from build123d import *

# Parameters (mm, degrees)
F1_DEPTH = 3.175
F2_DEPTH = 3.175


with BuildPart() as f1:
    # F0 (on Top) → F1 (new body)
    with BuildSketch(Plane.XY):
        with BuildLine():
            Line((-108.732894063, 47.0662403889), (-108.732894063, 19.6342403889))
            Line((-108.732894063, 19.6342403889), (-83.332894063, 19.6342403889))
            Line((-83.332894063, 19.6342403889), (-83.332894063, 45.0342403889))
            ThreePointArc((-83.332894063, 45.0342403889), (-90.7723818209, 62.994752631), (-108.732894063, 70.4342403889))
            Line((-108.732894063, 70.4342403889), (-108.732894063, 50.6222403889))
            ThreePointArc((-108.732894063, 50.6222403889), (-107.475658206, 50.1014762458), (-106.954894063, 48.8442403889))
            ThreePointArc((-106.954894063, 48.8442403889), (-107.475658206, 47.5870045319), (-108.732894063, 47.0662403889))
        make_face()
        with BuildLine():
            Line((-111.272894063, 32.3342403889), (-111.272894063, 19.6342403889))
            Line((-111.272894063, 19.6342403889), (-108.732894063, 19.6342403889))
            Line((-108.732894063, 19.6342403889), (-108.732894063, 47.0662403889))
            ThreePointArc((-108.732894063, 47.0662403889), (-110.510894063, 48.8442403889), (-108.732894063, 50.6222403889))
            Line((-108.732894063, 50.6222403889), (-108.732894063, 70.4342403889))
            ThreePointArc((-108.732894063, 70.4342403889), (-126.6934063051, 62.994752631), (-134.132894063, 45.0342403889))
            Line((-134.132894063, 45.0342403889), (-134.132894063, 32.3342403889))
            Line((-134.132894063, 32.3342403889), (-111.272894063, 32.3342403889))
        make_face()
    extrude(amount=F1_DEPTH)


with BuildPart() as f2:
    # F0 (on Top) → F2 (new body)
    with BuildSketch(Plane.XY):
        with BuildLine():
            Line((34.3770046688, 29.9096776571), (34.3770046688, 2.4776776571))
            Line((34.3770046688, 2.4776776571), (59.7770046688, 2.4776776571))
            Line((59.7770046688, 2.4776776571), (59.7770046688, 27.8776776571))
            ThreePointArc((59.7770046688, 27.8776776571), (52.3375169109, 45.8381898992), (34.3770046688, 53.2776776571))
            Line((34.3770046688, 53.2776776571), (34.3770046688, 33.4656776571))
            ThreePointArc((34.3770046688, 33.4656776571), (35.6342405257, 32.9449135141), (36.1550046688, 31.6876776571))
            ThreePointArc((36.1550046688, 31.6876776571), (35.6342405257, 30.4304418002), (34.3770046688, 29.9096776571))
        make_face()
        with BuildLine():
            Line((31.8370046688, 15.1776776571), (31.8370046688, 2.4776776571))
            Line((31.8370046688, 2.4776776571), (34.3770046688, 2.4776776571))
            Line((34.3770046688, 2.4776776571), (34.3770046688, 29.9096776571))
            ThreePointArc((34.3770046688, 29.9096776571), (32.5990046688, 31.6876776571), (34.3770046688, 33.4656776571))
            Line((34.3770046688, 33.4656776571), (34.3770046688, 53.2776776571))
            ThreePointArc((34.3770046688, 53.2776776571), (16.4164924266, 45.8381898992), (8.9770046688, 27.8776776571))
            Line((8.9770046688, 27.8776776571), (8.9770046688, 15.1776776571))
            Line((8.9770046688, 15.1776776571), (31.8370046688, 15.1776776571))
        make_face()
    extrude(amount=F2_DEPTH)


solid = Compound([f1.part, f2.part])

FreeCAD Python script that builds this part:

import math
import FreeCAD as App
import Part
import Sketcher

V = App.Vector
Q = App.Units.Quantity

doc = App.newDocument("Part")
params = doc.addObject("Spreadsheet::Sheet", "Params")
for row, (alias, value) in enumerate([
    ("sketch1_radius", "1 in"),
    ("sketch1_height", "1 in"),
    ("sketch1_radius2", "0.07 in"),
    ("sketch1_width", "0.9 in"),
    ("pad1_length", "0.125 in"),
    ("sketch2_radius", "1 in"),
    ("sketch2_height", "1 in"),
    ("sketch2_radius2", "0.07 in"),
    ("sketch2_width", "0.9 in"),
    ("pad2_length", "0.125 in"),
], start=1):
    params.set(f"A{row}", alias)
    params.set(f"B{row}", "=" + value)
    params.setAlias(f"B{row}", alias)

body = doc.addObject("PartDesign::Body", "Body")

# Sketch on XY plane
sketch1 = body.newObject("Sketcher::SketchObject", "Sketch")
sketch1.AttachmentSupport = (doc.getObject("XY_Plane"), [""])
sketch1.MapMode = "FlatFace"
sketch1.addGeometry([
    Part.LineSegment(V(-83.3, 19.6, 0), V(-83.3, 45, 0)),  # 0
    Part.ArcOfCircle(Part.Circle(V(-108.7, 45, 0), V(0, 0, 1), 25.4), math.radians(0), math.radians(90)),  # 1
    Part.ArcOfCircle(Part.Circle(V(-108.7, 45, 0), V(0, 0, 1), 25.4), math.radians(90), math.radians(180)),  # 2
    Part.LineSegment(V(-134.1, 45, 0), V(-134.1, 32.3, 0)),  # 3
    Part.LineSegment(V(-134.1, 32.3, 0), V(-111.3, 32.3, 0)),  # 4
    Part.LineSegment(V(-111.3, 32.3, 0), V(-111.3, 19.6, 0)),  # 5
    Part.LineSegment(V(-111.3, 19.6, 0), V(-83.3, 19.6, 0)),  # 6
    Part.ArcOfCircle(Part.Circle(V(-108.7, 48.8, 0), V(0, 0, 1), 1.8), math.radians(-90), math.radians(0)),  # 7
    Part.ArcOfCircle(Part.Circle(V(-108.7, 48.8, 0), V(0, 0, 1), 1.8), math.radians(0), math.radians(270)),  # 8
], False)
sketch1.addConstraint([
    Sketcher.Constraint("Tangent", 0, 2, 1, 1),
    Sketcher.Constraint("Tangent", 1, 2, 2, 1),
    Sketcher.Constraint("Tangent", 2, 2, 3, 1),
    Sketcher.Constraint("Coincident", 3, 2, 4, 1),
    Sketcher.Constraint("Coincident", 4, 2, 5, 1),
    Sketcher.Constraint("Coincident", 5, 2, 6, 1),
    Sketcher.Constraint("Coincident", 6, 2, 0, 1),
    Sketcher.Constraint("Tangent", 7, 1, 8, 2),
    Sketcher.Constraint("Coincident", 8, 1, 7, 2),
    Sketcher.Constraint("Vertical", 0),
    Sketcher.Constraint("Vertical", 3),
    Sketcher.Constraint("Horizontal", 4),
    Sketcher.Constraint("Vertical", 5),
    Sketcher.Constraint("Horizontal", 6),
    Sketcher.Constraint("Equal", 1, 2),
    Sketcher.Constraint("Horizontal", 7, 3, 8, 1),
    Sketcher.Constraint("Vertical", 2, 3, 7, 3),
    Sketcher.Constraint("Vertical", 8, 3, 1, 2),
    Sketcher.Constraint("Vertical", 1, 2, 7, 1),
    Sketcher.Constraint("Equal", 3, 5),
    Sketcher.Constraint("Radius", 1, Q("1 in")),
    Sketcher.Constraint("DistanceY", 0, 1, 0, 2, Q("1 in")),
    Sketcher.Constraint("Radius", 7, Q("0.07 in")),
    Sketcher.Constraint("DistanceX", 4, 1, 4, 2, Q("0.9 in")),
    Sketcher.Constraint("DistanceY", 1, 3, 7, 3, Q("0.15 in")),
    Sketcher.Constraint("DistanceY", -1, 1, 1, 3, Q("45.03424 mm")),
    Sketcher.Constraint("DistanceX", 1, 3, -1, 1, Q("108.732894 mm")),
])
sketch1.setExpression("Constraints[20]", "Params.sketch1_radius")
sketch1.setExpression("Constraints[21]", "Params.sketch1_height")
sketch1.setExpression("Constraints[22]", "Params.sketch1_radius2")
sketch1.setExpression("Constraints[23]", "Params.sketch1_width")
pad1 = body.newObject("PartDesign::Pad", "Pad")
pad1.Profile = sketch1
pad1.setExpression("Length", "Params.pad1_length")
body2 = doc.addObject("PartDesign::Body", "Body001")

# Sketch on XY plane
sketch2 = body2.newObject("Sketcher::SketchObject", "Sketch001")
sketch2.AttachmentSupport = (doc.getObject("XY_Plane001"), [""])
sketch2.MapMode = "FlatFace"
sketch2.addGeometry([
    Part.LineSegment(V(59.8, 2.5, 0), V(59.8, 27.9, 0)),  # 0
    Part.ArcOfCircle(Part.Circle(V(34.4, 27.9, 0), V(0, 0, 1), 25.4), math.radians(0), math.radians(90)),  # 1
    Part.ArcOfCircle(Part.Circle(V(34.4, 27.9, 0), V(0, 0, 1), 25.4), math.radians(90), math.radians(180)),  # 2
    Part.LineSegment(V(9, 27.9, 0), V(9, 15.2, 0)),  # 3
    Part.LineSegment(V(9, 15.2, 0), V(31.8, 15.2, 0)),  # 4
    Part.LineSegment(V(31.8, 15.2, 0), V(31.8, 2.5, 0)),  # 5
    Part.LineSegment(V(31.8, 2.5, 0), V(59.8, 2.5, 0)),  # 6
    Part.ArcOfCircle(Part.Circle(V(34.4, 31.7, 0), V(0, 0, 1), 1.8), math.radians(-90), math.radians(0)),  # 7
    Part.ArcOfCircle(Part.Circle(V(34.4, 31.7, 0), V(0, 0, 1), 1.8), math.radians(0), math.radians(270)),  # 8
], False)
sketch2.addConstraint([
    Sketcher.Constraint("Tangent", 0, 2, 1, 1),
    Sketcher.Constraint("Tangent", 1, 2, 2, 1),
    Sketcher.Constraint("Tangent", 2, 2, 3, 1),
    Sketcher.Constraint("Coincident", 3, 2, 4, 1),
    Sketcher.Constraint("Coincident", 4, 2, 5, 1),
    Sketcher.Constraint("Coincident", 5, 2, 6, 1),
    Sketcher.Constraint("Coincident", 6, 2, 0, 1),
    Sketcher.Constraint("Tangent", 7, 1, 8, 2),
    Sketcher.Constraint("Coincident", 8, 1, 7, 2),
    Sketcher.Constraint("Vertical", 0),
    Sketcher.Constraint("Vertical", 3),
    Sketcher.Constraint("Horizontal", 4),
    Sketcher.Constraint("Vertical", 5),
    Sketcher.Constraint("Horizontal", 6),
    Sketcher.Constraint("Equal", 1, 2),
    Sketcher.Constraint("Horizontal", 7, 3, 8, 1),
    Sketcher.Constraint("Vertical", 2, 3, 7, 3),
    Sketcher.Constraint("Vertical", 8, 3, 1, 2),
    Sketcher.Constraint("Vertical", 1, 2, 7, 1),
    Sketcher.Constraint("Equal", 3, 5),
    Sketcher.Constraint("Radius", 1, Q("1 in")),
    Sketcher.Constraint("DistanceY", 0, 1, 0, 2, Q("1 in")),
    Sketcher.Constraint("Radius", 7, Q("0.07 in")),
    Sketcher.Constraint("DistanceX", 4, 1, 4, 2, Q("0.9 in")),
    Sketcher.Constraint("DistanceY", 1, 3, 7, 3, Q("0.15 in")),
    Sketcher.Constraint("DistanceX", -1, 1, 1, 3, Q("34.377005 mm")),
    Sketcher.Constraint("DistanceY", -1, 1, 1, 3, Q("27.877678 mm")),
])
sketch2.setExpression("Constraints[20]", "Params.sketch2_radius")
sketch2.setExpression("Constraints[21]", "Params.sketch2_height")
sketch2.setExpression("Constraints[22]", "Params.sketch2_radius2")
sketch2.setExpression("Constraints[23]", "Params.sketch2_width")
pad2 = body2.newObject("PartDesign::Pad", "Pad001")
pad2.Profile = sketch2
pad2.setExpression("Length", "Params.pad2_length")

doc.recompute()
